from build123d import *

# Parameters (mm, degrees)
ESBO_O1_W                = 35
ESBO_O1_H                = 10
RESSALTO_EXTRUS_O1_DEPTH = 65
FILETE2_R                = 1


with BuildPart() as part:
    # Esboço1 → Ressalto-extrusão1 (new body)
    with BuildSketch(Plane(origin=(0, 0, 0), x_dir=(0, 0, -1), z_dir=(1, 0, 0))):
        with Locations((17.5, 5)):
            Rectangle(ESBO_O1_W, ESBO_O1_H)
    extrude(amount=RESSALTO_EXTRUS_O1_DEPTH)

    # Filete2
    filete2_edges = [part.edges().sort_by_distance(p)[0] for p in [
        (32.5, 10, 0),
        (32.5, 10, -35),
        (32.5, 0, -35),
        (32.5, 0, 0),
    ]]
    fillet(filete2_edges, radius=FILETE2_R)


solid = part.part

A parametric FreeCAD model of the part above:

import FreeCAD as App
import Part
import Sketcher
from FreeCAD import Vector


def edges_at(feature, points):
    """Names of the edges that pass closest to the given points."""
    edges = feature.Shape.Edges
    near = lambda p: min(range(len(edges)), key=lambda i: edges[i].distToShape(Part.Vertex(*p))[0])
    return sorted({f"Edge{near(p) + 1}" for p in points})

doc = App.newDocument("Part")
body = doc.addObject("PartDesign::Body", "Body")

# Sketch on YZ plane
sketch1 = body.newObject("Sketcher::SketchObject", "Sketch")
sketch1.AttachmentSupport = (doc.getObject("YZ_Plane"), [""])
sketch1.MapMode = "FlatFace"
sketch1.addGeometry([
    Part.LineSegment(Vector(10, 0, 0), Vector(0, 0, 0)),
    Part.LineSegment(Vector(0, 0, 0), Vector(0, -35, 0)),
    Part.LineSegment(Vector(0, -35, 0), Vector(10, -35, 0)),
    Part.LineSegment(Vector(10, -35, 0), Vector(10, 0, 0)),
], False)
sketch1.addConstraint([
    Sketcher.Constraint("Coincident", 0, 2, 1, 1),
    Sketcher.Constraint("Coincident", 1, 2, 2, 1),
    Sketcher.Constraint("Coincident", 2, 2, 3, 1),
    Sketcher.Constraint("Coincident", 3, 2, 0, 1),
    Sketcher.Constraint("Horizontal", 0),
    Sketcher.Constraint("Vertical", 1),
    Sketcher.Constraint("Horizontal", 2),
    Sketcher.Constraint("Vertical", 3),
    Sketcher.Constraint("Coincident", 0, 2, -1, 1),
    Sketcher.Constraint("DistanceX", 0, 2, 0, 1, 10.0),
    Sketcher.Constraint("DistanceY", 1, 2, 1, 1, 35.0),
])
pad1 = body.newObject("PartDesign::Pad", "Pad")
pad1.Profile = sketch1
pad1.Length = 65
doc.recompute()

fillet = body.newObject("PartDesign::Fillet", "Fillet")
fillet.Base = (pad1, edges_at(pad1, [
    (32.5, 10, 0),
    (32.5, 10, -35),
    (32.5, 0, -35),
    (32.5, 0, 0),
]))
fillet.Radius = 1

doc.recompute()
